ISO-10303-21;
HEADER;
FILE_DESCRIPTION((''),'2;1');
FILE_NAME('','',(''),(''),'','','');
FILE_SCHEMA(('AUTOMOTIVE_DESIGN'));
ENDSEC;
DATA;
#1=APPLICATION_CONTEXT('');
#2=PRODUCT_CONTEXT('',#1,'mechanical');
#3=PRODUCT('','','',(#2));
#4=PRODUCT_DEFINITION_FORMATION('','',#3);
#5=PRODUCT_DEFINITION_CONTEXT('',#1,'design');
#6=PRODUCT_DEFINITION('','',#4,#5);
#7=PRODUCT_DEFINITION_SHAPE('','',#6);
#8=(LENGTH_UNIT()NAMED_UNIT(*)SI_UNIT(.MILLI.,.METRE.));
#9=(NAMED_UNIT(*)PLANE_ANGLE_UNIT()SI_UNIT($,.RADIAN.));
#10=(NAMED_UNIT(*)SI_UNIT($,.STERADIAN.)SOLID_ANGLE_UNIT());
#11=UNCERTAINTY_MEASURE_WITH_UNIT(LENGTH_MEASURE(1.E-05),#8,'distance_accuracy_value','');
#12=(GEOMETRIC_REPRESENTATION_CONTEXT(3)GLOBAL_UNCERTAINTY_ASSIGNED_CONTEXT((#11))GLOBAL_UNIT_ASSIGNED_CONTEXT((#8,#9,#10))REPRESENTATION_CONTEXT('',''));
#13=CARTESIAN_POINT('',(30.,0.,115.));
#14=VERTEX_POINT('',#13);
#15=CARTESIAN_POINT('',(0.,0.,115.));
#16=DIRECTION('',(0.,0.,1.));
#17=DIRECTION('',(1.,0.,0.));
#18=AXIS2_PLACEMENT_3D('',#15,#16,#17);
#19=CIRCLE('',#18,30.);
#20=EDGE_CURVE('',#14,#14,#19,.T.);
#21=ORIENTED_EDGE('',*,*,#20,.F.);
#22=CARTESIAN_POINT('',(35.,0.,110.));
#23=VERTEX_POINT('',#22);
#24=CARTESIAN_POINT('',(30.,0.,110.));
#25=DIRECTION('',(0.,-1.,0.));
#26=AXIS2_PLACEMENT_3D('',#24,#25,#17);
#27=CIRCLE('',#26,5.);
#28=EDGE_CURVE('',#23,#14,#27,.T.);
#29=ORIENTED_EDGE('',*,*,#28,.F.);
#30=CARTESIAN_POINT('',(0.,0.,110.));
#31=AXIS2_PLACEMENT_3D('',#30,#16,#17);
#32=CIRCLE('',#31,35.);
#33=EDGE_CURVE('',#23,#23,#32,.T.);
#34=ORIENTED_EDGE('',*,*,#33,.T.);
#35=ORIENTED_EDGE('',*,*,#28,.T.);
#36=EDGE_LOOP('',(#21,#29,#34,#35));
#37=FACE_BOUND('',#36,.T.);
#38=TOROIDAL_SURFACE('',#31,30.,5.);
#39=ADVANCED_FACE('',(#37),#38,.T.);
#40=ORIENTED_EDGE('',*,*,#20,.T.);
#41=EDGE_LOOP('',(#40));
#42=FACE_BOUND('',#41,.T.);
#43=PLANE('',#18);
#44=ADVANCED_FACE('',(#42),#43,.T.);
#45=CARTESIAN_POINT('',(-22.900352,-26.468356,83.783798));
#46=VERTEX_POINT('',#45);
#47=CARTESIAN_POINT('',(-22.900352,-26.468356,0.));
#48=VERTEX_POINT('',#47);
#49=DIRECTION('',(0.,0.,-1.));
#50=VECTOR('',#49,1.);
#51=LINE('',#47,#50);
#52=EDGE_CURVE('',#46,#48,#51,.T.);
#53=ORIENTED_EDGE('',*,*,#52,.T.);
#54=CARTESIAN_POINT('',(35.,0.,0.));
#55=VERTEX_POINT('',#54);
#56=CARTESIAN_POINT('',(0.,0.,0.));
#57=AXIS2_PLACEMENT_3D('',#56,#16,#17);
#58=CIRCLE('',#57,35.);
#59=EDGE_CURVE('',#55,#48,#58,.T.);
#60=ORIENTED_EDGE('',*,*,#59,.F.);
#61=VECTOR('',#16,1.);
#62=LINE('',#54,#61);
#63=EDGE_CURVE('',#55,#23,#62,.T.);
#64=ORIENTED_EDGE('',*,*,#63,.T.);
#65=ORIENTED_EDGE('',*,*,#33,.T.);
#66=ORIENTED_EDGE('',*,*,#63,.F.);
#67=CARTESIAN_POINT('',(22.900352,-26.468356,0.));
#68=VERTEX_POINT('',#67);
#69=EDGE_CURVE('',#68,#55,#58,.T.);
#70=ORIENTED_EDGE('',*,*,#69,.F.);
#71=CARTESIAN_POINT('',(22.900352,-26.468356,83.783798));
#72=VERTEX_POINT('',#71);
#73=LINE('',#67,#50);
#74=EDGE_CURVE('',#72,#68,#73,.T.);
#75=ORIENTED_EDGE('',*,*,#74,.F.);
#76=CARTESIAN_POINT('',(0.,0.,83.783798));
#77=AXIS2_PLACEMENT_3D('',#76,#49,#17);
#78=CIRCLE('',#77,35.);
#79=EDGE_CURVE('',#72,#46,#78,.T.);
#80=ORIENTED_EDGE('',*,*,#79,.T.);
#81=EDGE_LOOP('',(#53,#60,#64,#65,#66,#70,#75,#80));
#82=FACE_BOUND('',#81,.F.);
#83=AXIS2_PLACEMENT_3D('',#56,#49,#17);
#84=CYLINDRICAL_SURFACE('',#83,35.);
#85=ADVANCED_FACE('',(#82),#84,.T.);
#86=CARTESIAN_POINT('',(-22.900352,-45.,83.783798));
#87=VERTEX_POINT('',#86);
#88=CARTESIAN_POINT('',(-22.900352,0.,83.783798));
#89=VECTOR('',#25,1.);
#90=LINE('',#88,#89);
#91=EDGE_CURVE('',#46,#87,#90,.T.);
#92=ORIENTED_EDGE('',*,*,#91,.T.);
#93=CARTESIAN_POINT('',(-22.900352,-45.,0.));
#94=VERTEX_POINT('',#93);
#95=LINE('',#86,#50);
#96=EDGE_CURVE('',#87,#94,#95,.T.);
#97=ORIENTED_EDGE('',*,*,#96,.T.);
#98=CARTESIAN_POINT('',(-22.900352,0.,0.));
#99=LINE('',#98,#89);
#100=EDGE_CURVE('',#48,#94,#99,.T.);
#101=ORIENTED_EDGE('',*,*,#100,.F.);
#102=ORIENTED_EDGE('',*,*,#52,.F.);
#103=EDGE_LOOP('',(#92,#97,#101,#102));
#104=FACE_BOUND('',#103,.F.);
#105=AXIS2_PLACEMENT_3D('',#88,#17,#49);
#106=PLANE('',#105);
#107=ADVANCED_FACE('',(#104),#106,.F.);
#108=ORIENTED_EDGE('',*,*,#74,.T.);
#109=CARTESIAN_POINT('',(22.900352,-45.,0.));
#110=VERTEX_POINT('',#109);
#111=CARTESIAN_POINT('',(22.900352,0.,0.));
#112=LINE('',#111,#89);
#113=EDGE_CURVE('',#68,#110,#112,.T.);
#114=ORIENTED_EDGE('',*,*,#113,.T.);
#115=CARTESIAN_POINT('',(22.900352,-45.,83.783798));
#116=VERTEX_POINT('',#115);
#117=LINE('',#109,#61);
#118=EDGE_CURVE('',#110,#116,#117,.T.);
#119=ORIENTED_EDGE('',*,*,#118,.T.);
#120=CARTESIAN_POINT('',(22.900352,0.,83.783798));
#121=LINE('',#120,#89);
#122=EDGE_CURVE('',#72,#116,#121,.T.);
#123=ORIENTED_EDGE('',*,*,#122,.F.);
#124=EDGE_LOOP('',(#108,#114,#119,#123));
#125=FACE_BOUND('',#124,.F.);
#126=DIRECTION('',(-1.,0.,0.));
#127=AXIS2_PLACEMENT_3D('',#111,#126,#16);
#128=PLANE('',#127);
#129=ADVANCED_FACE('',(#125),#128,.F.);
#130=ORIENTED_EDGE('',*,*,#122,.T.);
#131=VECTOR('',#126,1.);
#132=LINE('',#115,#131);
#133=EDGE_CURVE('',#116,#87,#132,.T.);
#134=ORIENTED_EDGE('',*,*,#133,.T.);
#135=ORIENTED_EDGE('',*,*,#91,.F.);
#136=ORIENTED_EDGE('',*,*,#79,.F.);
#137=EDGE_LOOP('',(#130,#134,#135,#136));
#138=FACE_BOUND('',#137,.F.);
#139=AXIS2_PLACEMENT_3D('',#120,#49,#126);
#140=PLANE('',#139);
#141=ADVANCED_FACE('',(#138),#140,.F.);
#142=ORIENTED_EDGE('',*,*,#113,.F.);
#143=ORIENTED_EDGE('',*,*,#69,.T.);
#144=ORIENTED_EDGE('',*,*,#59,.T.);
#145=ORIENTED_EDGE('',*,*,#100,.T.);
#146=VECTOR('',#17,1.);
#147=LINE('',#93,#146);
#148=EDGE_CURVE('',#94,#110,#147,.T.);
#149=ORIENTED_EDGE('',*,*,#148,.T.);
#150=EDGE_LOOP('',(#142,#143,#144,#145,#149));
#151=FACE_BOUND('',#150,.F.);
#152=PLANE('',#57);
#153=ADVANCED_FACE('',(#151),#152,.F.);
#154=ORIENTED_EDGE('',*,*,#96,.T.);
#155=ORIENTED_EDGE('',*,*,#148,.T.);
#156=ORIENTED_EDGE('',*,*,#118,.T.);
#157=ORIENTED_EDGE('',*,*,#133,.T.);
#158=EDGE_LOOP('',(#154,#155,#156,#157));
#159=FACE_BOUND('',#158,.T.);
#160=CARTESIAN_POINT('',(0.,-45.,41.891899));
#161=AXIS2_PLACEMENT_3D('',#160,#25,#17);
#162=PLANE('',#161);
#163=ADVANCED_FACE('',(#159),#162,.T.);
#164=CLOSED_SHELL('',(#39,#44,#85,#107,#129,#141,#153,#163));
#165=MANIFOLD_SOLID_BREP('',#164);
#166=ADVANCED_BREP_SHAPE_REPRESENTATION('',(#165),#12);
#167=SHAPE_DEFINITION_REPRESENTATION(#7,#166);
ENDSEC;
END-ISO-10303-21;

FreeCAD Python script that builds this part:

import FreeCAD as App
import Part
import Sketcher

V = App.Vector
Q = App.Units.Quantity


def edges_at(feature, points):
    """Names of the edges that pass closest to the given points."""
    edges = feature.Shape.Edges
    near = lambda p: min(range(len(edges)), key=lambda i: edges[i].distToShape(Part.Vertex(*p))[0])
    return sorted({f"Edge{near(p) + 1}" for p in points})


def add_polygon(sketch, points):
    """Adds a closed chain of lines whose ends are joined by coincident constraints."""
    first, n = sketch.GeometryCount, len(points)
    for a, b in zip(points, points[1:] + points[:1]):
        sketch.addGeometry(Part.LineSegment(App.Vector(*a, 0), App.Vector(*b, 0)), False)
    for i in range(n):
        sketch.addConstraint(Sketcher.Constraint("Coincident", first + i, 2, first + (i + 1) % n, 1))

doc = App.newDocument("Part")
body = doc.addObject("PartDesign::Body", "Body")

sketch1 = body.newObject("Sketcher::SketchObject", "Sketch")
sketch1.AttachmentSupport = (doc.getObject("XY_Plane"), [""])
sketch1.MapMode = "FlatFace"
sketch1.addGeometry(Part.Circle(V(0, 0, 0), V(0, 0, 1), 35), False)
sketch1.addConstraint([
    Sketcher.Constraint("Coincident", 0, 3, -1, 1),
    Sketcher.Constraint("Diameter", 0, Q("70 mm")),
])
pad1 = body.newObject("PartDesign::Pad", "Pad")
pad1.Profile = sketch1
pad1.Length = 115
doc.recompute()

fillet = body.newObject("PartDesign::Fillet", "Fillet")
fillet.Base = (pad1, edges_at(pad1, [(-35, 0, 115)]))
fillet.Radius = 5

sketch2 = body.newObject("Sketcher::SketchObject", "Sketch001")
sketch2.AttachmentSupport = (doc.getObject("XZ_Plane"), [""])
sketch2.MapMode = "FlatFace"
add_polygon(sketch2, [(23, 84), (-23, 84), (-23, 0), (23, 0)])
sketch2.addConstraint([
    Sketcher.Constraint("Horizontal", 0),
    Sketcher.Constraint("Vertical", 1),
    Sketcher.Constraint("Horizontal", 2),
    Sketcher.Constraint("Vertical", 3),
    Sketcher.Constraint("Symmetric", 1, 2, 2, 2, -1, 1),
    Sketcher.Constraint("DistanceY", 1, 2, 1, 1, Q("83.783798 mm")),
    Sketcher.Constraint("DistanceX", 0, 2, 0, 1, Q("45.800704 mm")),
])
pad2 = body.newObject("PartDesign::Pad", "Pad001")
pad2.Profile = sketch2
pad2.Length = 45

doc.recompute()
